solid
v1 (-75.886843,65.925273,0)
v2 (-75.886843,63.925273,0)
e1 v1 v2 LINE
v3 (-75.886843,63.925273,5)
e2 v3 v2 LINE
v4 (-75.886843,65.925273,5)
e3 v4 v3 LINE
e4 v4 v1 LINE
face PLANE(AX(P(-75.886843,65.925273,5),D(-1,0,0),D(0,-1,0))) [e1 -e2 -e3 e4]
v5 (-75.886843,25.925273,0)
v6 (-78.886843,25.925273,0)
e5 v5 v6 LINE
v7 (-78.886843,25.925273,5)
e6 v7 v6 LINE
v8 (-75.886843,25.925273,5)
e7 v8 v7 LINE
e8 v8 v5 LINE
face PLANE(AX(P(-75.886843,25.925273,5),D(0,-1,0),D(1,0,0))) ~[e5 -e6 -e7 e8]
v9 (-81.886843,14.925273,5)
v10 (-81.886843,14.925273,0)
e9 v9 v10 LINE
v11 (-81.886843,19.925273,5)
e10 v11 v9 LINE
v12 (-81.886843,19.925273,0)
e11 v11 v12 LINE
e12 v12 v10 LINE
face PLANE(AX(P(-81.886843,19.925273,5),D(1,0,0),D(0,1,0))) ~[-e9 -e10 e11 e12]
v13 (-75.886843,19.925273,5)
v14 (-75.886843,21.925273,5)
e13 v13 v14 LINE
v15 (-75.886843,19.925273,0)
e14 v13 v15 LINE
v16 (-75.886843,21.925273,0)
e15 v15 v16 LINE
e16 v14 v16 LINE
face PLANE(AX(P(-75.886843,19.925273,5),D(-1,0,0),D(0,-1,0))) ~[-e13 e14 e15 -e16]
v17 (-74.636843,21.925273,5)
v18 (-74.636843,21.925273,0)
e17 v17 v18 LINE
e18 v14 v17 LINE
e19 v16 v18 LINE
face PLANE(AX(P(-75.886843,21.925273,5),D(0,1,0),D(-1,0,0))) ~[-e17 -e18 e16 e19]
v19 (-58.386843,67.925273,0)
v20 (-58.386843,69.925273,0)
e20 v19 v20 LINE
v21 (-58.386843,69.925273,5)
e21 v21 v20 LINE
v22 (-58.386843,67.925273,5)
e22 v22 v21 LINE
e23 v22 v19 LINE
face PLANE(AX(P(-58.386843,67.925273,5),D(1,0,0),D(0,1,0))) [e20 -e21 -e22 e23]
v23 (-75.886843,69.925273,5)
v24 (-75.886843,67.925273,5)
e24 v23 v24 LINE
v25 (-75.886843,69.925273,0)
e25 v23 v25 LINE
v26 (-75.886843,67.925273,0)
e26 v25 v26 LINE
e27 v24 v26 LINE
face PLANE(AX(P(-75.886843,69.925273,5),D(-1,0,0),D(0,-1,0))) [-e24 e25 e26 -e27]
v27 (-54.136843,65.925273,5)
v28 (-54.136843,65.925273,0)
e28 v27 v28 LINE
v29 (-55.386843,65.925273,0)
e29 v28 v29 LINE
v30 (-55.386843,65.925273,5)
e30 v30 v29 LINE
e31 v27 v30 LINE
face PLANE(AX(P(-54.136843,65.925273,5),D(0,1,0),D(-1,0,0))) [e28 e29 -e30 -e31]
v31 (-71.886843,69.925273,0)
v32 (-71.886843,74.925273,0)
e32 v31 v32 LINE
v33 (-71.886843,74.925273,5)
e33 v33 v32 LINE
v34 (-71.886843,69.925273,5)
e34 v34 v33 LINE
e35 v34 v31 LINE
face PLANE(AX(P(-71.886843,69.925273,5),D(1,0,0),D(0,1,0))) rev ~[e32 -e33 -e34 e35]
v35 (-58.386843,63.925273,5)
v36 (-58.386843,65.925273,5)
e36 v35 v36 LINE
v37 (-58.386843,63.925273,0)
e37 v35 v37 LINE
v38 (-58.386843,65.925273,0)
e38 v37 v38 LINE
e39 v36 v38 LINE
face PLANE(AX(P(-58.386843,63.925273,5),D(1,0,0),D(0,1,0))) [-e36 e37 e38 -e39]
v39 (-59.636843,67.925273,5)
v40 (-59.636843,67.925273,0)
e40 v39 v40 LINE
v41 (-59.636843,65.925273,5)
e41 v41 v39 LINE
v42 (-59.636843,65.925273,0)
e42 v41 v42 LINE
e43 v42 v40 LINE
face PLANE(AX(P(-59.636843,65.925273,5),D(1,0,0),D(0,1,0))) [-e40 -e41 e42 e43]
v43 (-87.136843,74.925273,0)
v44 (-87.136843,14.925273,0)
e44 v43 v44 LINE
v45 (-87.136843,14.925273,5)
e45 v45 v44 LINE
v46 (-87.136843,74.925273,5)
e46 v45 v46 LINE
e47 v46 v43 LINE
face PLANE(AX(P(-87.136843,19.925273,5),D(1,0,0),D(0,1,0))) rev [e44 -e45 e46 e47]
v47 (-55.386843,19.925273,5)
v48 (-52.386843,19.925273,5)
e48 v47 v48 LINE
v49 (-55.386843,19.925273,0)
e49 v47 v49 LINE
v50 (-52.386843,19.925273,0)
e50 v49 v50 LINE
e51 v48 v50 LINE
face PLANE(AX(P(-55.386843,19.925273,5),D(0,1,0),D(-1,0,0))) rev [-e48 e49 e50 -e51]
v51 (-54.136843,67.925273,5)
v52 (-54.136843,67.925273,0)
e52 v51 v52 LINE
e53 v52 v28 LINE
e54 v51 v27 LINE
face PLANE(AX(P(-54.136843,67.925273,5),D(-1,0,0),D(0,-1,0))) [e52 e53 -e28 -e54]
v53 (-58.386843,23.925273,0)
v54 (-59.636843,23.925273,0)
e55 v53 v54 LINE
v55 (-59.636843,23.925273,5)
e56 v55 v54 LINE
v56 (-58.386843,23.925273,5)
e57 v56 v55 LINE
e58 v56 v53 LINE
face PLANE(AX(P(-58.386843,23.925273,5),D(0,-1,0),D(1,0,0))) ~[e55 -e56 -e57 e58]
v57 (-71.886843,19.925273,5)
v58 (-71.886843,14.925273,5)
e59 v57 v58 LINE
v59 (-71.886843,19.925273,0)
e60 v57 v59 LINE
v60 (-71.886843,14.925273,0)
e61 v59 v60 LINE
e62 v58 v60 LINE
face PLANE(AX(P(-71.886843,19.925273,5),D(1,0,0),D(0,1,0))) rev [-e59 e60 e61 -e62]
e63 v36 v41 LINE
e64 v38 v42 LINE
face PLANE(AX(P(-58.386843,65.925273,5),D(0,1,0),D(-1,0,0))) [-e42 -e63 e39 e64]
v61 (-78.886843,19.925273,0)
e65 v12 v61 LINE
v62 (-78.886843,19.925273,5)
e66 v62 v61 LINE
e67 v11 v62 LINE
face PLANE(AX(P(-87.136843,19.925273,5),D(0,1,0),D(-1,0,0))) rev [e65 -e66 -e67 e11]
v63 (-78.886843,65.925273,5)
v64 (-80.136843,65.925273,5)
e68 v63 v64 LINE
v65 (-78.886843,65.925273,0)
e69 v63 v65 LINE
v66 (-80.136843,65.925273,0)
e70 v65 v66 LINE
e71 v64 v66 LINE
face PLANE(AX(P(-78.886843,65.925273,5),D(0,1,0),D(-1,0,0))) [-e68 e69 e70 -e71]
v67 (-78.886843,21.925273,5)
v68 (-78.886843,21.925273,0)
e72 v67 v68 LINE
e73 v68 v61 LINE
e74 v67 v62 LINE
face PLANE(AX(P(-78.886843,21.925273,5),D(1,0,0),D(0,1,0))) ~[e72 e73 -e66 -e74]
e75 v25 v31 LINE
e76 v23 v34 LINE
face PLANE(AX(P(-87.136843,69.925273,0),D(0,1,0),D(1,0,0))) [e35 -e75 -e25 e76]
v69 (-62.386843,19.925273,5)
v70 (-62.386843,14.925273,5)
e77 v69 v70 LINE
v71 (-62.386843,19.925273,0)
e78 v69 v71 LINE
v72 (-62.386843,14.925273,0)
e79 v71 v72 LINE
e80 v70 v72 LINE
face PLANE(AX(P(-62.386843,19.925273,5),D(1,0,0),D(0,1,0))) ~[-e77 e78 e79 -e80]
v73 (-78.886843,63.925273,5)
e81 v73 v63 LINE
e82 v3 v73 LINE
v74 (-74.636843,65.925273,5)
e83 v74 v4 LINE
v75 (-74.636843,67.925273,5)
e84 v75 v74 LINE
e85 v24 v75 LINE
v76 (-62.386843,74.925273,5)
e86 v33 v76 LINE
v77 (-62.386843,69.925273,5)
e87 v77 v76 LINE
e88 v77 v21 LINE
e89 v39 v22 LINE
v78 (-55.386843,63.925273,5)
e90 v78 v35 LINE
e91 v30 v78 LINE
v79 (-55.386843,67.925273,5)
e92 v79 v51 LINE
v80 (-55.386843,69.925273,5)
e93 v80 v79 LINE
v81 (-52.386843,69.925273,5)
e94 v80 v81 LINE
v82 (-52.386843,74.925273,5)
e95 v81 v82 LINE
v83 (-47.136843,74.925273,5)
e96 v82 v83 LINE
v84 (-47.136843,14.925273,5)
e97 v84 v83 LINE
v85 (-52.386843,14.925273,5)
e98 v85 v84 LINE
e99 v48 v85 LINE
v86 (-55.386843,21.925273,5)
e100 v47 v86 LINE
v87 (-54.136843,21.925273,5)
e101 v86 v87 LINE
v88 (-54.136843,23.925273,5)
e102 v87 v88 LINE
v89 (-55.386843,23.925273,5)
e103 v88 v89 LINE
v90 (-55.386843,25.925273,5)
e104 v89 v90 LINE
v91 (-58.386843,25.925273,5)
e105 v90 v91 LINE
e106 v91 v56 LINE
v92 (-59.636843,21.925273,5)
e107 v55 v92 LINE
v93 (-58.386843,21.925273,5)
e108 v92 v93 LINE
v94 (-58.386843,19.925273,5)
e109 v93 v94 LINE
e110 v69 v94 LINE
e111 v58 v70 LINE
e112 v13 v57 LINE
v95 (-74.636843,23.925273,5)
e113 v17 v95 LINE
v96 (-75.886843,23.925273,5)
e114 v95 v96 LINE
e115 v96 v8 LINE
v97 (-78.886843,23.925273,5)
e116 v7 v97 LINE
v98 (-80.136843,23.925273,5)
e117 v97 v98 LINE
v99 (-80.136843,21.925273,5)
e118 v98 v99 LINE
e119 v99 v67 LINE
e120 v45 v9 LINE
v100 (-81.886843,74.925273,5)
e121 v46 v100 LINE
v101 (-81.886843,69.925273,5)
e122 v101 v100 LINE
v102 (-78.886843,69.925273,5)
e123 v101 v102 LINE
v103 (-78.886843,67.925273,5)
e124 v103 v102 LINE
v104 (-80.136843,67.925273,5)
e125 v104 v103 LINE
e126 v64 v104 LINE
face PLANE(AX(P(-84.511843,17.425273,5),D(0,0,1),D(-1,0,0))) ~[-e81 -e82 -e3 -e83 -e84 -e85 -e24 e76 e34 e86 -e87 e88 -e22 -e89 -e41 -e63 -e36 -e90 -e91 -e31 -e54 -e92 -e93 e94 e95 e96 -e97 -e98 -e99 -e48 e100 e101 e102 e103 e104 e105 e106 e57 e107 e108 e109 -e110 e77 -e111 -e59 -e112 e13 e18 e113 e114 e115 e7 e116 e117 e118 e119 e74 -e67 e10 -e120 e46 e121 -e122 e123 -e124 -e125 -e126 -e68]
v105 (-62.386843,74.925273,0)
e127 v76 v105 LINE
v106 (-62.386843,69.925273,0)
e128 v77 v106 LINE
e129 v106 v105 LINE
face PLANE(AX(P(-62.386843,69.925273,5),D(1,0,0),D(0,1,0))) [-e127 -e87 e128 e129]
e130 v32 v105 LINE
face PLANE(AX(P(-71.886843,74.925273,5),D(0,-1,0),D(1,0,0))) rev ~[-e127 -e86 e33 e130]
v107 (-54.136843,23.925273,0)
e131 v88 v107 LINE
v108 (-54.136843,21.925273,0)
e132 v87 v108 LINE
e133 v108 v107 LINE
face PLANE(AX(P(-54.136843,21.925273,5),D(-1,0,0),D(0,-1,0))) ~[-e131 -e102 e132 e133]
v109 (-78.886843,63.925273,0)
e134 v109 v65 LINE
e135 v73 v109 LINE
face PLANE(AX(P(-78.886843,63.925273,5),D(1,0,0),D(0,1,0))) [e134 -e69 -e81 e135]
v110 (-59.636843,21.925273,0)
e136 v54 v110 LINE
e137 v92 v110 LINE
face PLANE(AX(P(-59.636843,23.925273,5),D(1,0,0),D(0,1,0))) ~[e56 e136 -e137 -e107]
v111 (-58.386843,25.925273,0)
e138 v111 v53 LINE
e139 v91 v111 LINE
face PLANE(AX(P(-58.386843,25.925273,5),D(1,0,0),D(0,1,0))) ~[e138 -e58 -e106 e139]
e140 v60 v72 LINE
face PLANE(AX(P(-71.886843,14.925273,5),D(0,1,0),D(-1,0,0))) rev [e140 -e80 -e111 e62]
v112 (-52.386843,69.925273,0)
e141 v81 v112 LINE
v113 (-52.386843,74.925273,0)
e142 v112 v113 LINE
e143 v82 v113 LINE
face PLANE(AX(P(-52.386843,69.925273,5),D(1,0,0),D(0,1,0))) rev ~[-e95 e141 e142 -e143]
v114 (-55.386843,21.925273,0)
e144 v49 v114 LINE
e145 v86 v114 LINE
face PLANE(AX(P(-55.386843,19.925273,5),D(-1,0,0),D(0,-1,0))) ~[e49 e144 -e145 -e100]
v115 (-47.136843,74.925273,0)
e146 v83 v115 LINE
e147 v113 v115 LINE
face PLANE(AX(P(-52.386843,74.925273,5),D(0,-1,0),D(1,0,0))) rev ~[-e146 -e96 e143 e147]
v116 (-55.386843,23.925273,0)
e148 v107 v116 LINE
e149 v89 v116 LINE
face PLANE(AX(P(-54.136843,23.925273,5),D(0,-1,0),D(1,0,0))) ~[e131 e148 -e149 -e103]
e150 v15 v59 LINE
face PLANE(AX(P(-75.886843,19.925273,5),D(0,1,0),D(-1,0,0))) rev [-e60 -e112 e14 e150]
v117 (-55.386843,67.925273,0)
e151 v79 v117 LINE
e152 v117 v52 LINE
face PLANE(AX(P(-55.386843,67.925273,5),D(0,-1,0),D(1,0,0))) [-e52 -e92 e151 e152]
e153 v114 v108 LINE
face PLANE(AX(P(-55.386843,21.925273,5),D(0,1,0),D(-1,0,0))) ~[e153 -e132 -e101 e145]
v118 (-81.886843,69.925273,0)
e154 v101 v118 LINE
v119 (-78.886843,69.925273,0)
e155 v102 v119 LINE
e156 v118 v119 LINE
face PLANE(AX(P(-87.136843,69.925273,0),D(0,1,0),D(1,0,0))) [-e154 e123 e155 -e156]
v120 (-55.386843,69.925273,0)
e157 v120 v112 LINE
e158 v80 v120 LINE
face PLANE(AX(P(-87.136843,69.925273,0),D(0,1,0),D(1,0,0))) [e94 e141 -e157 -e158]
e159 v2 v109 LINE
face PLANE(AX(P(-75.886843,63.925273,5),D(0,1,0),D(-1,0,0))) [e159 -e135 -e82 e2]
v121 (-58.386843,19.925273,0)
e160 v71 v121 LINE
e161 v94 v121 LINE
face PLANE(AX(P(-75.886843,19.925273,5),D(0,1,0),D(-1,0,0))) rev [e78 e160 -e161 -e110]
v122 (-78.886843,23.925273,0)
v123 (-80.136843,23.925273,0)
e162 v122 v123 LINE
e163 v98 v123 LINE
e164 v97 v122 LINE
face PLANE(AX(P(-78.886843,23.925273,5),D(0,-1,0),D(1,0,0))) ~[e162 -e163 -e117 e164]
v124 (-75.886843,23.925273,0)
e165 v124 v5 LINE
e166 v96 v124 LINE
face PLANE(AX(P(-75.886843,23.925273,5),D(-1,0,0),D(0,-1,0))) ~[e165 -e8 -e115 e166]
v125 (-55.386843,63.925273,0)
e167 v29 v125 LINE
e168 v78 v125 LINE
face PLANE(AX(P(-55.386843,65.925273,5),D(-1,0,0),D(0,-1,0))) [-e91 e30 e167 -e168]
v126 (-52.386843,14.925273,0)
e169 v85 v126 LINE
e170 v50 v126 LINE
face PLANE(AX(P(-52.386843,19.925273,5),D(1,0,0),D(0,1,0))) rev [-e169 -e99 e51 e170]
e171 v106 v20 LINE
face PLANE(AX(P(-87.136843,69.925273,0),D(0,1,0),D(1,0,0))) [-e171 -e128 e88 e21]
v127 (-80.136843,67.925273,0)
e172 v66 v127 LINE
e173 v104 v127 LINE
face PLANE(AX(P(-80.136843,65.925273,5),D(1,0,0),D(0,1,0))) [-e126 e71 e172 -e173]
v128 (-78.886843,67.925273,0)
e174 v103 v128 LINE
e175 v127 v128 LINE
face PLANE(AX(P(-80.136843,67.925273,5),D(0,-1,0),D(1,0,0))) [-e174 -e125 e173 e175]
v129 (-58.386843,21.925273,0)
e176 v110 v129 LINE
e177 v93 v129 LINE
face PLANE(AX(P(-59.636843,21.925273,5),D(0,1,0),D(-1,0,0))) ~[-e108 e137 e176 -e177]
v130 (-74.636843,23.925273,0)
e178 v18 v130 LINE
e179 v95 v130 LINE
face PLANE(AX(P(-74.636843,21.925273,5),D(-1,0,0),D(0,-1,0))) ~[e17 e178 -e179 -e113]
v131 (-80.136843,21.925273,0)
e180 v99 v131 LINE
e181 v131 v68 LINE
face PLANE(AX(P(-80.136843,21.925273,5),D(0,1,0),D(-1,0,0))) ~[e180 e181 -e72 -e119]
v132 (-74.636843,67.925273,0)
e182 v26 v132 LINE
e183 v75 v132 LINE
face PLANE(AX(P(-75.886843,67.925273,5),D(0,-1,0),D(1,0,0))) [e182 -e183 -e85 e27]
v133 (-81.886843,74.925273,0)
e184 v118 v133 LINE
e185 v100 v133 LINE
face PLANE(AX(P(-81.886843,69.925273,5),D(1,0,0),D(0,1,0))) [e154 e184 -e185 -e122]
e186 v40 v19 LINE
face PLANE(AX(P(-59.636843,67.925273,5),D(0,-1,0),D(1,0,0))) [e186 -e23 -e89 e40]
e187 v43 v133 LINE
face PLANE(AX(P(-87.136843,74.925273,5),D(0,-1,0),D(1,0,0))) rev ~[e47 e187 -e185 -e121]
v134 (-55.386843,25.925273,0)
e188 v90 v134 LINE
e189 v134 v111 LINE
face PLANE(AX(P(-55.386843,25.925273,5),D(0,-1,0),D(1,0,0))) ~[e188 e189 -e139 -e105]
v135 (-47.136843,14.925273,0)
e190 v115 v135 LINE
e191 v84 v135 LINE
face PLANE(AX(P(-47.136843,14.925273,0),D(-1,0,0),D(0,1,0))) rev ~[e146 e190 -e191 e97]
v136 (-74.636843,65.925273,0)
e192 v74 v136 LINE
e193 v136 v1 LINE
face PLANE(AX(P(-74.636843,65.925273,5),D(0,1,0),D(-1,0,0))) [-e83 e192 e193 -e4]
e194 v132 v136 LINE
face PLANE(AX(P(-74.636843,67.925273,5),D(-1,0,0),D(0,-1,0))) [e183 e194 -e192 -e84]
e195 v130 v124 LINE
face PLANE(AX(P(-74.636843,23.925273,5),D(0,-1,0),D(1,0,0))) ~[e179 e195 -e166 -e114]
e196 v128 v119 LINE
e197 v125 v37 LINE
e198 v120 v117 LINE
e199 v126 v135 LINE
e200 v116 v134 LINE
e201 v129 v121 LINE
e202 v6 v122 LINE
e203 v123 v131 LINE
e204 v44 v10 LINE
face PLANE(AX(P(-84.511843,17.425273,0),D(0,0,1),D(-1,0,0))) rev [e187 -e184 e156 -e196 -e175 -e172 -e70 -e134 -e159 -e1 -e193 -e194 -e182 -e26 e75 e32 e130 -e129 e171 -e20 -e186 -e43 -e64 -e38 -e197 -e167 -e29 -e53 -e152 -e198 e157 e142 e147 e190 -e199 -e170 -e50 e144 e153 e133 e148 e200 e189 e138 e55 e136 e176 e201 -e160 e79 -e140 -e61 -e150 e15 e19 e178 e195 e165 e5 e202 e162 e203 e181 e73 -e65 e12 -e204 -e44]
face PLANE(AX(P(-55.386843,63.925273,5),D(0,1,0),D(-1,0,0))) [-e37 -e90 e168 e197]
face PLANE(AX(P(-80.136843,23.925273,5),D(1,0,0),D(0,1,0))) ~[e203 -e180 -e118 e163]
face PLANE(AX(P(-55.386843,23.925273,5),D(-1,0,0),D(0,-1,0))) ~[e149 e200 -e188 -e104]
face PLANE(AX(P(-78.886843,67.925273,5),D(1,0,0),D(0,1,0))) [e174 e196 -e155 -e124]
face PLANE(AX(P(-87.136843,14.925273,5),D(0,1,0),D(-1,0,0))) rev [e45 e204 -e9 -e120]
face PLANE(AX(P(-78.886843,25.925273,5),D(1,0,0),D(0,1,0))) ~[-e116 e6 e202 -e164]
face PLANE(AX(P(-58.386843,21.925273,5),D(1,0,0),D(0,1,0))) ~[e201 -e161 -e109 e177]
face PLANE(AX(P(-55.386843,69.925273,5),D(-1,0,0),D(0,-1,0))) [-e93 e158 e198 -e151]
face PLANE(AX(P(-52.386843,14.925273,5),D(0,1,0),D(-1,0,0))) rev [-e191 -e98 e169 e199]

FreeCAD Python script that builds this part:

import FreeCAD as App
import Part
import Sketcher

V = App.Vector
Q = App.Units.Quantity


def add_polygon(sketch, points):
    """Adds a closed chain of lines whose ends are joined by coincident constraints."""
    first, n = sketch.GeometryCount, len(points)
    for a, b in zip(points, points[1:] + points[:1]):
        sketch.addGeometry(Part.LineSegment(App.Vector(*a, 0), App.Vector(*b, 0)), False)
    for i in range(n):
        sketch.addConstraint(Sketcher.Constraint("Coincident", first + i, 2, first + (i + 1) % n, 1))

doc = App.newDocument("Part")
body = doc.addObject("PartDesign::Body", "Body")

sketch1 = body.newObject("Sketcher::SketchObject", "Sketch")
sketch1.AttachmentSupport = (doc.getObject("XY_Plane"), [""])
sketch1.MapMode = "FlatFace"
add_polygon(sketch1, [(-87, 70), (-87, 15), (-47, 15), (-47, 70)])
sketch1.addConstraint([
    Sketcher.Constraint("Vertical", 0),
    Sketcher.Constraint("Horizontal", 1),
    Sketcher.Constraint("Vertical", 2),
    Sketcher.Constraint("Horizontal", 3),
    Sketcher.Constraint("DistanceX", 1, 1, 1, 2, Q("40 mm")),
    Sketcher.Constraint("DistanceY", 0, 2, 0, 1, Q("55 mm")),
    Sketcher.Constraint("DistanceX", 0, 2, -1, 1, Q("87.136843 mm")),
    Sketcher.Constraint("DistanceY", -1, 1, 0, 2, Q("14.925273 mm")),
])
pad1 = body.newObject("PartDesign::Pad", "Pad")
pad1.Profile = sketch1
pad1.Length = 5

sketch2 = body.newObject("Sketcher::SketchObject", "Sketch001")
sketch2.AttachmentSupport = (doc.getObject("XY_Plane"), [""])
sketch2.MapMode = "FlatFace"
sketch2.AttachmentOffset = App.Placement(V(0, 0, 5), App.Rotation())
add_polygon(sketch2, [(-95, 77.7), (-95, 7.1), (-39.3, 7.1), (-39.3, 77.7)])
add_polygon(sketch2, [(-78.9, 63.9), (-75.9, 63.9), (-75.9, 65.9), (-74.6, 65.9), (-74.6, 67.9), (-75.9, 67.9), (-75.9, 69.9), (-58.4, 69.9), (-58.4, 67.9), (-59.6, 67.9), (-59.6, 65.9), (-58.4, 65.9), (-58.4, 63.9), (-55.4, 63.9), (-55.4, 65.9), (-54.1, 65.9), (-54.1, 67.9), (-55.4, 67.9), (-55.4, 69.9), (-47.1, 69.9), (-47.1, 14.9), (-87.1, 14.9), (-87.1, 69.9), (-78.9, 69.9), (-78.9, 67.9), (-80.1, 67.9), (-80.1, 65.9), (-78.9, 65.9)])
sketch2.addConstraint([
    Sketcher.Constraint("Vertical", 0),
    Sketcher.Constraint("Horizontal", 1),
    Sketcher.Constraint("Vertical", 2),
    Sketcher.Constraint("Horizontal", 3),
    Sketcher.Constraint("Horizontal", 4),
    Sketcher.Constraint("Vertical", 5),
    Sketcher.Constraint("Horizontal", 6),
    Sketcher.Constraint("Vertical", 7),
    Sketcher.Constraint("Horizontal", 8),
    Sketcher.Constraint("Vertical", 9),
    Sketcher.Constraint("Horizontal", 10),
    Sketcher.Constraint("Vertical", 11),
    Sketcher.Constraint("Horizontal", 12),
    Sketcher.Constraint("Vertical", 13),
    Sketcher.Constraint("Horizontal", 14),
    Sketcher.Constraint("Vertical", 15),
    Sketcher.Constraint("Horizontal", 16),
    Sketcher.Constraint("Vertical", 17),
    Sketcher.Constraint("Horizontal", 18),
    Sketcher.Constraint("Vertical", 19),
    Sketcher.Constraint("Horizontal", 20),
    Sketcher.Constraint("Vertical", 21),
    Sketcher.Constraint("Horizontal", 22),
    Sketcher.Constraint("Vertical", 23),
    Sketcher.Constraint("Horizontal", 24),
    Sketcher.Constraint("Vertical", 25),
    Sketcher.Constraint("Horizontal", 26),
    Sketcher.Constraint("Vertical", 27),
    Sketcher.Constraint("Horizontal", 28),
    Sketcher.Constraint("Vertical", 29),
    Sketcher.Constraint("Horizontal", 30),
    Sketcher.Constraint("Vertical", 31),
    Sketcher.Constraint("Horizontal", 8, 2, 11, 2),
    Sketcher.Constraint("Horizontal", 6, 2, 13, 2),
    Sketcher.Constraint("Horizontal", 4, 2, 15, 2),
    Sketcher.Constraint("Horizontal", 14, 2, 17, 2),
    Sketcher.Constraint("Horizontal", 12, 2, 19, 2),
    Sketcher.Constraint("Horizontal", 10, 2, 21, 2),
    Sketcher.Constraint("Horizontal", 22, 2, 25, 2),
    Sketcher.Constraint("Horizontal", 20, 2, 27, 2),
    Sketcher.Constraint("Horizontal", 18, 2, 29, 2),
    Sketcher.Constraint("Vertical", 5, 2, 8, 2),
    Sketcher.Constraint("Vertical", 11, 2, 14, 2),
    Sketcher.Constraint("Vertical", 17, 2, 20, 2),
    Sketcher.Constraint("Vertical", 27, 2, 30, 2),
    Sketcher.Constraint("Equal", 8, 12),
    Sketcher.Constraint("Equal", 4, 16),
    Sketcher.Constraint("Equal", 14, 18),
    Sketcher.Constraint("Equal", 22, 26),
    Sketcher.Constraint("Equal", 20, 28),
    Sketcher.Constraint("Equal", 5, 7),
    Sketcher.Constraint("Equal", 7, 9),
    Sketcher.Constraint("DistanceX", 4, 1, 4, 2, Q("3 mm")),
    Sketcher.Constraint("DistanceX", 24, 2, 24, 1, Q("40 mm")),
    Sketcher.Constraint("DistanceY", 5, 1, 5, 2, Q("2 mm")),
    Sketcher.Constraint("DistanceY", 23, 2, 23, 1, Q("55 mm")),
    Sketcher.Constraint("DistanceX", 10, 1, 10, 2, Q("17.5 mm")),
    Sketcher.Constraint("DistanceX", 7, 2, 12, 2, Q("15 mm")),
    Sketcher.Constraint("DistanceX", 1, 1, 1, 2, Q("55.638 mm")),
    Sketcher.Constraint("DistanceY", 0, 2, 0, 1, Q("70.638 mm")),
    Sketcher.Constraint("DistanceX", 0, 2, -1, 1, Q("94.956 mm")),
    Sketcher.Constraint("DistanceY", -1, 1, 0, 2, Q("7.106 mm")),
    Sketcher.Constraint("DistanceX", 4, 2, -1, 1, Q("75.886843 mm")),
    Sketcher.Constraint("DistanceY", -1, 1, 4, 2, Q("63.925273 mm")),
])
pocket1 = body.newObject("PartDesign::Pocket", "Pocket")
pocket1.Profile = sketch2
pocket1.Length = 10

sketch3 = body.newObject("Sketcher::SketchObject", "Sketch002")
sketch3.AttachmentSupport = (doc.getObject("XY_Plane"), [""])
sketch3.MapMode = "FlatFace"
sketch3.AttachmentOffset = App.Placement(V(0, 0, 5), App.Rotation())
add_polygon(sketch3, [(-87, 75), (-87, 70), (-82, 70), (-82, 75)])
add_polygon(sketch3, [(-72, 75), (-72, 70), (-62, 70), (-62, 75)])
add_polygon(sketch3, [(-52, 75), (-52, 70), (-47, 70), (-47, 75)])
sketch3.addConstraint([
    Sketcher.Constraint("Vertical", 0),
    Sketcher.Constraint("Horizontal", 1),
    Sketcher.Constraint("Vertical", 2),
    Sketcher.Constraint("Horizontal", 3),
    Sketcher.Constraint("Vertical", 4),
    Sketcher.Constraint("Horizontal", 5),
    Sketcher.Constraint("Vertical", 6),
    Sketcher.Constraint("Horizontal", 7),
    Sketcher.Constraint("Vertical", 8),
    Sketcher.Constraint("Horizontal", 9),
    Sketcher.Constraint("Vertical", 10),
    Sketcher.Constraint("Horizontal", 11),
    Sketcher.Constraint("Horizontal", 1, 2, 4, 2),
    Sketcher.Constraint("Horizontal", 3, 2, 6, 2),
    Sketcher.Constraint("Horizontal", 5, 2, 8, 2),
    Sketcher.Constraint("Horizontal", 7, 2, 10, 2),
    Sketcher.Constraint("Equal", 3, 9),
    Sketcher.Constraint("DistanceY", 0, 2, 0, 1, Q("5 mm")),
    Sketcher.Constraint("DistanceX", 5, 1, 5, 2, Q("9.5 mm")),
    Sketcher.Constraint("DistanceX", 1, 2, 4, 2, Q("10 mm")),
    Sketcher.Constraint("DistanceX", 5, 2, 8, 2, Q("10 mm")),
    Sketcher.Constraint("DistanceX", 1, 1, 1, 2, Q("5.25 mm")),
    Sketcher.Constraint("DistanceX", 0, 2, -1, 1, Q("87.136843 mm")),
    Sketcher.Constraint("DistanceY", -1, 1, 0, 2, Q("69.925273 mm")),
])
pad2 = body.newObject("PartDesign::Pad", "Pad001")
pad2.Profile = sketch3
pad2.Length = 5
pad2.Reversed = True
doc.recompute()

datumplane = body.newObject("PartDesign::Plane", "DatumPlane")
datumplane.AttachmentSupport = (doc.getObject("XZ_Plane"), [""])
datumplane.MapMode = "FlatFace"
datumplane.AttachmentOffset = App.Placement(V(0, 0, -44.925273), App.Rotation())
mirrored = body.newObject("PartDesign::Mirrored", "Mirrored")
mirrored.Originals = [pocket1, pad2]
mirrored.MirrorPlane = (datumplane, [""])
body.Tip = mirrored

doc.recompute()
